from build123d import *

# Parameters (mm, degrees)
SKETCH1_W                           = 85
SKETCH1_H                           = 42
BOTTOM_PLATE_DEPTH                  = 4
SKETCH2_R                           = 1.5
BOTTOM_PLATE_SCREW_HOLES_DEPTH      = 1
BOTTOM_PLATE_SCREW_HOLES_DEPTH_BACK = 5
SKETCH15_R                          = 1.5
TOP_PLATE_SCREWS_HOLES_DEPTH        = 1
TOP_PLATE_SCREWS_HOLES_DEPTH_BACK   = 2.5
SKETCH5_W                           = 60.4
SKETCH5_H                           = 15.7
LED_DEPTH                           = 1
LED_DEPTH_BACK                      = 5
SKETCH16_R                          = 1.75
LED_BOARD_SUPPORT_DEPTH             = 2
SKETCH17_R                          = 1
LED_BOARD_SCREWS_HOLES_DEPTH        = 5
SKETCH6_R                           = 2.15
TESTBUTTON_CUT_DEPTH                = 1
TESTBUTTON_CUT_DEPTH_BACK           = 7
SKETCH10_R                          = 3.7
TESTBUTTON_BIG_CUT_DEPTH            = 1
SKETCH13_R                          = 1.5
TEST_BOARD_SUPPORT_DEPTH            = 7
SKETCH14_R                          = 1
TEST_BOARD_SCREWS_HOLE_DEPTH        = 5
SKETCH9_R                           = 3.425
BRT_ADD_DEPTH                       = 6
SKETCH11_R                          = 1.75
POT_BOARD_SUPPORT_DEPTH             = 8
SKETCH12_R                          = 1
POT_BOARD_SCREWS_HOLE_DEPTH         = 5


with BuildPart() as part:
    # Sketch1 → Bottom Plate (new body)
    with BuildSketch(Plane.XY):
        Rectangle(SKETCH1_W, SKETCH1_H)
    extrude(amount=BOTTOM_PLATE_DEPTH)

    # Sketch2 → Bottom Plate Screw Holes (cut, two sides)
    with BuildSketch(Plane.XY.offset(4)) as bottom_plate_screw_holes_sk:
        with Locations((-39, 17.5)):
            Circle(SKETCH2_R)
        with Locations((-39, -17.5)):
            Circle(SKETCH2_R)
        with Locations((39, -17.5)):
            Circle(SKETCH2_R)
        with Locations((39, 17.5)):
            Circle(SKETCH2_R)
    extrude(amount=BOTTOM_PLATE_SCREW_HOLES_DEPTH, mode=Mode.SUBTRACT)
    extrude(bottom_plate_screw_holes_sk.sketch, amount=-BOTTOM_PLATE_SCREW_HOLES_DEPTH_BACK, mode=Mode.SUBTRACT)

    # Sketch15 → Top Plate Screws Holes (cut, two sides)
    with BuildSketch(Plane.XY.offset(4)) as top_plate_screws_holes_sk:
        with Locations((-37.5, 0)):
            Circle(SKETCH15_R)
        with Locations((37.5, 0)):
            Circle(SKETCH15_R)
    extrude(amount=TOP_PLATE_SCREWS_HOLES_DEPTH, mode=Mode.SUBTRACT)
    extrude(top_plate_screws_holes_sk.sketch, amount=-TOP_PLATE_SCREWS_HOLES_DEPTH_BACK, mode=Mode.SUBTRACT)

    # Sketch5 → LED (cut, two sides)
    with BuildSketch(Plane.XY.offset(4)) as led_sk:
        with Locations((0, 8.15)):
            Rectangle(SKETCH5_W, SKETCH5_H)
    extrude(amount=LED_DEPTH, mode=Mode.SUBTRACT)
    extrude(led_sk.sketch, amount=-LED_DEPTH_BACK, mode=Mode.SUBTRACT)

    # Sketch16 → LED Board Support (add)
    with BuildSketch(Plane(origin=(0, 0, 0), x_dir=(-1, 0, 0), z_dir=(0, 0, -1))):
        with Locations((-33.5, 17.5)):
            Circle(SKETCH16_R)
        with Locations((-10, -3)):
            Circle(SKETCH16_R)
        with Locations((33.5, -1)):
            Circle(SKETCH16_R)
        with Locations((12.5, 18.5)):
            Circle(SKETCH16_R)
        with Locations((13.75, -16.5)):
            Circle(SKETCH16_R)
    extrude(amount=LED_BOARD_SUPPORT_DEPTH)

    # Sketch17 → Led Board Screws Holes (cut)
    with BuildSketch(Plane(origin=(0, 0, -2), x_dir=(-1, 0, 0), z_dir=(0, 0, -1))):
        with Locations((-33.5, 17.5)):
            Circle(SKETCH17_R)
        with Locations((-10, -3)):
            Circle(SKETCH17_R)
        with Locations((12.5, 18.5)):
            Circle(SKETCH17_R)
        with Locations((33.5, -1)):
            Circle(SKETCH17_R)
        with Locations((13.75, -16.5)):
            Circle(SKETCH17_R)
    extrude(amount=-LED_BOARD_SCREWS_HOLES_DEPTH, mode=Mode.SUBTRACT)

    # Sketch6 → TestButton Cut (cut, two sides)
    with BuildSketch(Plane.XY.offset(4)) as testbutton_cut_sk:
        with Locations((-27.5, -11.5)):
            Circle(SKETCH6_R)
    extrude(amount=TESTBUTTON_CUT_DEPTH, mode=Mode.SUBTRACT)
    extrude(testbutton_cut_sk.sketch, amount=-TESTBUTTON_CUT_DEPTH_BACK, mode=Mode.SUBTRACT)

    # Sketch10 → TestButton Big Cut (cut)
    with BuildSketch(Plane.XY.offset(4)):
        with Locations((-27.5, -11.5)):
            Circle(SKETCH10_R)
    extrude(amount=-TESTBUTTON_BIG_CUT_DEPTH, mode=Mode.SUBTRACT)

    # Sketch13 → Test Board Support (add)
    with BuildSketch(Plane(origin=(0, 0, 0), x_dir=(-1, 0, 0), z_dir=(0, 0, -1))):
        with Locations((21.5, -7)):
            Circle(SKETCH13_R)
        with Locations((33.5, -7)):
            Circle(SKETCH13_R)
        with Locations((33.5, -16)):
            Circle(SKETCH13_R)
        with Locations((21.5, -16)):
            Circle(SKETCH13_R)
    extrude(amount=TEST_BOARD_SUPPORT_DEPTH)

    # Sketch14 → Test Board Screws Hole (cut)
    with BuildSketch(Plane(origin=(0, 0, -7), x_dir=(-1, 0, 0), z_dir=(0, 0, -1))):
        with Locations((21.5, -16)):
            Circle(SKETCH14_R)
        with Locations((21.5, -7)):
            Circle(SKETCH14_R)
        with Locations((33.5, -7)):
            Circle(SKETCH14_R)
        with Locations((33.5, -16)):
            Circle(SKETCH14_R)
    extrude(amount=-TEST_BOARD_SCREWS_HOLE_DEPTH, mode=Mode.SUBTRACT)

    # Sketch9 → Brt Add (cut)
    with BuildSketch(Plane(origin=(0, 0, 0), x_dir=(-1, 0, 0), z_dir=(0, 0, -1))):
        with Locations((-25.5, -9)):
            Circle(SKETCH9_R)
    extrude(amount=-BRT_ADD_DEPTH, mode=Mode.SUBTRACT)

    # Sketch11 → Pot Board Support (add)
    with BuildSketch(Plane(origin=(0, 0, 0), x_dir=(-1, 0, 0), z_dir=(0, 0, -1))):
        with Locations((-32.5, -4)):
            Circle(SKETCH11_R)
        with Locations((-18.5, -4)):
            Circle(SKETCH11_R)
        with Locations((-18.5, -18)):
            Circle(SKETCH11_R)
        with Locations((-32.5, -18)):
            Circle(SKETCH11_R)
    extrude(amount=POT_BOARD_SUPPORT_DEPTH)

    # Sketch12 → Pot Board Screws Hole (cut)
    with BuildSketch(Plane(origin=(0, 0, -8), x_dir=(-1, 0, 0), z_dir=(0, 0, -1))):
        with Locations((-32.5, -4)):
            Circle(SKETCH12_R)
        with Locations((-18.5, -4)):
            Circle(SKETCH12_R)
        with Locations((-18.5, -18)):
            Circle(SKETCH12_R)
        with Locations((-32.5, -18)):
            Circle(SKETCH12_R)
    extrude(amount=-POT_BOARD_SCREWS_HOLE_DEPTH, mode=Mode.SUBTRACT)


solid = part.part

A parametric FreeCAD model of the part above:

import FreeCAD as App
import Part
import Sketcher
from FreeCAD import Vector

doc = App.newDocument("Part")
body = doc.addObject("PartDesign::Body", "Body")

# Sketch on XY plane
sketch1 = body.newObject("Sketcher::SketchObject", "Sketch")
sketch1.AttachmentSupport = (doc.getObject("XY_Plane"), [""])
sketch1.MapMode = "FlatFace"
sketch1.addGeometry([
    Part.LineSegment(Vector(-42, 21, 0), Vector(-42, -21, 0)),
    Part.LineSegment(Vector(-42, -21, 0), Vector(42, -21, 0)),
    Part.LineSegment(Vector(42, -21, 0), Vector(42, 21, 0)),
    Part.LineSegment(Vector(42, 21, 0), Vector(-42, 21, 0)),
], False)
sketch1.addConstraint([
    Sketcher.Constraint("Coincident", 0, 2, 1, 1),
    Sketcher.Constraint("Coincident", 1, 2, 2, 1),
    Sketcher.Constraint("Coincident", 2, 2, 3, 1),
    Sketcher.Constraint("Coincident", 3, 2, 0, 1),
    Sketcher.Constraint("Vertical", 0),
    Sketcher.Constraint("Horizontal", 1),
    Sketcher.Constraint("Vertical", 2),
    Sketcher.Constraint("Horizontal", 3),
    Sketcher.Constraint("Symmetric", 0, 2, 2, 2, -1, 1),
    Sketcher.Constraint("DistanceX", 1, 1, 1, 2, 85.0),
    Sketcher.Constraint("DistanceY", 0, 2, 0, 1, 42.0),
])
pad1 = body.newObject("PartDesign::Pad", "Pad")
pad1.Profile = sketch1
pad1.Length = 4

# Sketch on XY plane
sketch2 = body.newObject("Sketcher::SketchObject", "Sketch001")
sketch2.AttachmentSupport = (doc.getObject("XY_Plane"), [""])
sketch2.MapMode = "FlatFace"
sketch2.AttachmentOffset = App.Placement(Vector(0, 0, 4), App.Rotation())
sketch2.addGeometry([
    Part.Circle(Vector(-39, 17.5, 0), Vector(0, 0, 1), 1.5),
    Part.Circle(Vector(-39, -17.5, 0), Vector(0, 0, 1), 1.5),
    Part.Circle(Vector(39, -17.5, 0), Vector(0, 0, 1), 1.5),
    Part.Circle(Vector(39, 17.5, 0), Vector(0, 0, 1), 1.5),
], False)
sketch2.addConstraint([
    Sketcher.Constraint("Equal", 0, 1),
    Sketcher.Constraint("Equal", 1, 2),
    Sketcher.Constraint("Equal", 2, 3),
    Sketcher.Constraint("Symmetric", 0, 3, 2, 3, -1, 1),
    Sketcher.Constraint("Symmetric", 1, 3, 3, 3, -1, 1),
    Sketcher.Constraint("Symmetric", 1, 3, 2, 3, -2),
    Sketcher.Constraint("Diameter", 0, 3.0),
    Sketcher.Constraint("DistanceX", 0, 3, -1, 1, 39.0),
    Sketcher.Constraint("DistanceY", 1, 3, 0, 3, 35.0),
])
pocket1 = body.newObject("PartDesign::Pocket", "Pocket")
pocket1.Profile = sketch2
pocket1.Type = "ThroughAll"
pocket1.Midplane = True

# Sketch on XY plane
sketch3 = body.newObject("Sketcher::SketchObject", "Sketch002")
sketch3.AttachmentSupport = (doc.getObject("XY_Plane"), [""])
sketch3.MapMode = "FlatFace"
sketch3.AttachmentOffset = App.Placement(Vector(0, 0, 4), App.Rotation())
sketch3.addGeometry([
    Part.Circle(Vector(-37.5, 0, 0), Vector(0, 0, 1), 1.5),
    Part.Circle(Vector(37.5, 0, 0), Vector(0, 0, 1), 1.5),
], False)
sketch3.addConstraint([
    Sketcher.Constraint("Equal", 0, 1),
    Sketcher.Constraint("Symmetric", 0, 3, 1, 3, -1, 1),
    Sketcher.Constraint("PointOnObject", 0, 3, -1),
    Sketcher.Constraint("Diameter", 0, 3.0),
    Sketcher.Constraint("DistanceX", 0, 3, 1, 3, 75.0),
])
pocket2 = body.newObject("PartDesign::Pocket", "Pocket001")
pocket2.Profile = sketch3
pocket2.Type = "TwoLengths"
pocket2.Length = 1
pocket2.Length2 = 2.5
pocket2.Reversed = True

# Sketch on XY plane
sketch4 = body.newObject("Sketcher::SketchObject", "Sketch003")
sketch4.AttachmentSupport = (doc.getObject("XY_Plane"), [""])
sketch4.MapMode = "FlatFace"
sketch4.AttachmentOffset = App.Placement(Vector(0, 0, 4), App.Rotation())
sketch4.addGeometry([
    Part.LineSegment(Vector(-30, 16, 0), Vector(-30, 0, 0)),
    Part.LineSegment(Vector(-30, 0, 0), Vector(30, 0, 0)),
    Part.LineSegment(Vector(30, 0, 0), Vector(30, 16, 0)),
    Part.LineSegment(Vector(30, 16, 0), Vector(-30, 16, 0)),
], False)
sketch4.addConstraint([
    Sketcher.Constraint("Coincident", 0, 2, 1, 1),
    Sketcher.Constraint("Coincident", 1, 2, 2, 1),
    Sketcher.Constraint("Coincident", 2, 2, 3, 1),
    Sketcher.Constraint("Coincident", 3, 2, 0, 1),
    Sketcher.Constraint("Vertical", 0),
    Sketcher.Constraint("Horizontal", 1),
    Sketcher.Constraint("Vertical", 2),
    Sketcher.Constraint("Horizontal", 3),
    Sketcher.Constraint("DistanceX", 1, 1, 1, 2, 60.4),
    Sketcher.Constraint("DistanceY", 0, 2, 0, 1, 15.7),
    Sketcher.Constraint("DistanceY", -1, 1, 2, 2, 16.0),
    Sketcher.Constraint("DistanceX", 0, 2, -1, 1, 30.2),
])
pocket3 = body.newObject("PartDesign::Pocket", "Pocket002")
pocket3.Profile = sketch4
pocket3.Type = "ThroughAll"
pocket3.Midplane = True

# Sketch on XY plane
sketch5 = body.newObject("Sketcher::SketchObject", "Sketch004")
sketch5.AttachmentSupport = (doc.getObject("XY_Plane"), [""])
sketch5.MapMode = "FlatFace"
sketch5.addGeometry([
    Part.Circle(Vector(33.5, 17.5, 0), Vector(0, 0, 1), 1.8),  # 0
    Part.Circle(Vector(10, -3, 0), Vector(0, 0, 1), 1.8),  # 1
    Part.Circle(Vector(-33.5, -1, 0), Vector(0, 0, 1), 1.8),  # 2
    Part.Circle(Vector(-12.5, 18.5, 0), Vector(0, 0, 1), 1.8),  # 3
    Part.Circle(Vector(-13.8, -16.5, 0), Vector(0, 0, 1), 1.8),  # 4
], False)
sketch5.addConstraint([
    Sketcher.Constraint("Equal", 0, 1),
    Sketcher.Constraint("Equal", 1, 2),
    Sketcher.Constraint("Equal", 2, 3),
    Sketcher.Constraint("Equal", 3, 4),
    Sketcher.Constraint("Diameter", 0, 3.5),
    Sketcher.Constraint("DistanceX", -1, 1, 1, 3, 10.0),
    Sketcher.Constraint("DistanceY", 1, 3, -1, 1, 3.0),
    Sketcher.Constraint("DistanceY", 2, 3, -1, 1, 1.0),
    Sketcher.Constraint("DistanceX", 2, 3, 0, 3, 67.0),
    Sketcher.Constraint("DistanceX", 2, 3, 3, 3, 21.0),
    Sketcher.Constraint("DistanceY", 0, 3, 3, 3, 1.0),
    Sketcher.Constraint("DistanceY", 4, 3, 3, 3, 35.0),
    Sketcher.Constraint("DistanceX", -1, 1, 0, 3, 33.5),
    Sketcher.Constraint("DistanceY", -1, 1, 0, 3, 17.5),
    Sketcher.Constraint("DistanceX", 4, 3, -1, 1, 13.75),
])
pad2 = body.newObject("PartDesign::Pad", "Pad001")
pad2.Profile = sketch5
pad2.Length = 2
pad2.Reversed = True

# Sketch on XY plane
sketch6 = body.newObject("Sketcher::SketchObject", "Sketch005")
sketch6.AttachmentSupport = (doc.getObject("XY_Plane"), [""])
sketch6.MapMode = "FlatFace"
sketch6.AttachmentOffset = App.Placement(Vector(0, 0, -2), App.Rotation())
sketch6.addGeometry([
    Part.Circle(Vector(33.5, 17.5, 0), Vector(0, 0, 1), 1),  # 0
    Part.Circle(Vector(10, -3, 0), Vector(0, 0, 1), 1),  # 1
    Part.Circle(Vector(-12.5, 18.5, 0), Vector(0, 0, 1), 1),  # 2
    Part.Circle(Vector(-33.5, -1, 0), Vector(0, 0, 1), 1),  # 3
    Part.Circle(Vector(-13.8, -16.5, 0), Vector(0, 0, 1), 1),  # 4
], False)
sketch6.addConstraint([
    Sketcher.Constraint("Equal", 0, 1),
    Sketcher.Constraint("Equal", 1, 2),
    Sketcher.Constraint("Equal", 2, 3),
    Sketcher.Constraint("Equal", 3, 4),
    Sketcher.Constraint("Diameter", 0, 2.0),
    Sketcher.Constraint("DistanceX", -1, 1, 1, 3, 10.0),
    Sketcher.Constraint("DistanceY", 1, 3, -1, 1, 3.0),
    Sketcher.Constraint("DistanceY", 3, 3, -1, 1, 1.0),
    Sketcher.Constraint("DistanceX", 2, 3, 0, 3, 46.0),
    Sketcher.Constraint("DistanceY", 0, 3, 2, 3, 1.0),
    Sketcher.Constraint("DistanceX", 3, 3, 2, 3, 21.0),
    Sketcher.Constraint("DistanceY", 4, 3, 2, 3, 35.0),
    Sketcher.Constraint("DistanceX", -1, 1, 0, 3, 33.5),
    Sketcher.Constraint("DistanceY", -1, 1, 0, 3, 17.5),
    Sketcher.Constraint("DistanceX", 4, 3, -1, 1, 13.75),
])
pocket4 = body.newObject("PartDesign::Pocket", "Pocket003")
pocket4.Profile = sketch6
pocket4.Length = 5
pocket4.Reversed = True

# Sketch on XY plane
sketch7 = body.newObject("Sketcher::SketchObject", "Sketch006")
sketch7.AttachmentSupport = (doc.getObject("XY_Plane"), [""])
sketch7.MapMode = "FlatFace"
sketch7.AttachmentOffset = App.Placement(Vector(0, 0, 4), App.Rotation())
sketch7.addGeometry(Part.Circle(Vector(-27.5, -11.5, 0), Vector(0, 0, 1), 2.1), False)
sketch7.addConstraint([
    Sketcher.Constraint("Diameter", 0, 4.3),
    Sketcher.Constraint("DistanceX", 0, 3, -1, 1, 27.5),
    Sketcher.Constraint("DistanceY", 0, 3, -1, 1, 11.5),
])
pocket5 = body.newObject("PartDesign::Pocket", "Pocket004")
pocket5.Profile = sketch7
pocket5.Type = "ThroughAll"
pocket5.Midplane = True

# Sketch on XY plane
sketch8 = body.newObject("Sketcher::SketchObject", "Sketch007")
sketch8.AttachmentSupport = (doc.getObject("XY_Plane"), [""])
sketch8.MapMode = "FlatFace"
sketch8.AttachmentOffset = App.Placement(Vector(0, 0, 4), App.Rotation())
sketch8.addGeometry(Part.Circle(Vector(-27.5, -11.5, 0), Vector(0, 0, 1), 3.7), False)
sketch8.addConstraint([
    Sketcher.Constraint("Diameter", 0, 7.4),
    Sketcher.Constraint("DistanceX", 0, 3, -1, 1, 27.5),
    Sketcher.Constraint("DistanceY", 0, 3, -1, 1, 11.5),
])
pocket6 = body.newObject("PartDesign::Pocket", "Pocket005")
pocket6.Profile = sketch8
pocket6.Length = 1

# Sketch on XY plane
sketch9 = body.newObject("Sketcher::SketchObject", "Sketch008")
sketch9.AttachmentSupport = (doc.getObject("XY_Plane"), [""])
sketch9.MapMode = "FlatFace"
sketch9.addGeometry([
    Part.Circle(Vector(-21.5, -7, 0), Vector(0, 0, 1), 1.5),
    Part.Circle(Vector(-33.5, -7, 0), Vector(0, 0, 1), 1.5),
    Part.Circle(Vector(-33.5, -16, 0), Vector(0, 0, 1), 1.5),
    Part.Circle(Vector(-21.5, -16, 0), Vector(0, 0, 1), 1.5),
], False)
sketch9.addConstraint([
    Sketcher.Constraint("Equal", 0, 1),
    Sketcher.Constraint("Equal", 1, 2),
    Sketcher.Constraint("Equal", 2, 3),
    Sketcher.Constraint("Horizontal", 0, 3, 1, 3),
    Sketcher.Constraint("Horizontal", 2, 3, 3, 3),
    Sketcher.Constraint("Vertical", 1, 3, 2, 3),
    Sketcher.Constraint("Vertical", 0, 3, 3, 3),
    Sketcher.Constraint("Diameter", 0, 3.0),
    Sketcher.Constraint("DistanceY", 0, 3, -1, 1, 7.0),
    Sketcher.Constraint("DistanceY", 2, 3, -1, 1, 16.0),
    Sketcher.Constraint("DistanceX", 1, 3, 0, 3, 12.0),
    Sketcher.Constraint("DistanceX", 0, 3, -1, 1, 21.5),
])
pad3 = body.newObject("PartDesign::Pad", "Pad002")
pad3.Profile = sketch9
pad3.Length = 7
pad3.Reversed = True

# Sketch on XY plane
sketch10 = body.newObject("Sketcher::SketchObject", "Sketch009")
sketch10.AttachmentSupport = (doc.getObject("XY_Plane"), [""])
sketch10.MapMode = "FlatFace"
sketch10.AttachmentOffset = App.Placement(Vector(0, 0, -7), App.Rotation())
sketch10.addGeometry([
    Part.Circle(Vector(-21.5, -16, 0), Vector(0, 0, 1), 1),
    Part.Circle(Vector(-21.5, -7, 0), Vector(0, 0, 1), 1),
    Part.Circle(Vector(-33.5, -7, 0), Vector(0, 0, 1), 1),
    Part.Circle(Vector(-33.5, -16, 0), Vector(0, 0, 1), 1),
], False)
sketch10.addConstraint([
    Sketcher.Constraint("Equal", 0, 1),
    Sketcher.Constraint("Equal", 1, 2),
    Sketcher.Constraint("Equal", 2, 3),
    Sketcher.Constraint("Horizontal", 1, 3, 2, 3),
    Sketcher.Constraint("Horizontal", 0, 3, 3, 3),
    Sketcher.Constraint("Vertical", 0, 3, 1, 3),
    Sketcher.Constraint("Vertical", 2, 3, 3, 3),
    Sketcher.Constraint("Diameter", 0, 2.0),
    Sketcher.Constraint("DistanceY", 0, 3, -1, 1, 16.0),
    Sketcher.Constraint("DistanceY", 1, 3, -1, 1, 7.0),
    Sketcher.Constraint("DistanceX", 2, 3, 1, 3, 12.0),
    Sketcher.Constraint("DistanceX", 0, 3, -1, 1, 21.5),
])
pocket7 = body.newObject("PartDesign::Pocket", "Pocket006")
pocket7.Profile = sketch10
pocket7.Length = 5
pocket7.Reversed = True

# Sketch on XY plane
sketch11 = body.newObject("Sketcher::SketchObject", "Sketch010")
sketch11.AttachmentSupport = (doc.getObject("XY_Plane"), [""])
sketch11.MapMode = "FlatFace"
sketch11.addGeometry(Part.Circle(Vector(25.5, -9, 0), Vector(0, 0, 1), 3.4), False)
sketch11.addConstraint([
    Sketcher.Constraint("Diameter", 0, 6.85),
    Sketcher.Constraint("DistanceY", 0, 3, -1, 1, 9.0),
    Sketcher.Constraint("DistanceX", -1, 1, 0, 3, 25.5),
])
pocket8 = body.newObject("PartDesign::Pocket", "Pocket007")
pocket8.Profile = sketch11
pocket8.Length = 6
pocket8.Reversed = True

# Sketch on XY plane
sketch12 = body.newObject("Sketcher::SketchObject", "Sketch011")
sketch12.AttachmentSupport = (doc.getObject("XY_Plane"), [""])
sketch12.MapMode = "FlatFace"
sketch12.addGeometry([
    Part.Circle(Vector(32.5, -4, 0), Vector(0, 0, 1), 1.8),
    Part.Circle(Vector(18.5, -4, 0), Vector(0, 0, 1), 1.8),
    Part.Circle(Vector(18.5, -18, 0), Vector(0, 0, 1), 1.8),
    Part.Circle(Vector(32.5, -18, 0), Vector(0, 0, 1), 1.8),
], False)
sketch12.addConstraint([
    Sketcher.Constraint("Equal", 0, 1),
    Sketcher.Constraint("Equal", 1, 2),
    Sketcher.Constraint("Equal", 2, 3),
    Sketcher.Constraint("Horizontal", 0, 3, 1, 3),
    Sketcher.Constraint("Horizontal", 2, 3, 3, 3),
    Sketcher.Constraint("Vertical", 1, 3, 2, 3),
    Sketcher.Constraint("Vertical", 0, 3, 3, 3),
    Sketcher.Constraint("Diameter", 0, 3.5),
    Sketcher.Constraint("DistanceY", 0, 3, -1, 1, 4.0),
    Sketcher.Constraint("DistanceY", 2, 3, -1, 1, 18.0),
    Sketcher.Constraint("DistanceX", 1, 3, 0, 3, 14.0),
    Sketcher.Constraint("DistanceX", -1, 1, 0, 3, 32.5),
])
pad4 = body.newObject("PartDesign::Pad", "Pad003")
pad4.Profile = sketch12
pad4.Length = 8
pad4.Reversed = True

# Sketch on XY plane
sketch13 = body.newObject("Sketcher::SketchObject", "Sketch012")
sketch13.AttachmentSupport = (doc.getObject("XY_Plane"), [""])
sketch13.MapMode = "FlatFace"
sketch13.AttachmentOffset = App.Placement(Vector(0, 0, -8), App.Rotation())
sketch13.addGeometry([
    Part.Circle(Vector(32.5, -4, 0), Vector(0, 0, 1), 1),
    Part.Circle(Vector(18.5, -4, 0), Vector(0, 0, 1), 1),
    Part.Circle(Vector(18.5, -18, 0), Vector(0, 0, 1), 1),
    Part.Circle(Vector(32.5, -18, 0), Vector(0, 0, 1), 1),
], False)
sketch13.addConstraint([
    Sketcher.Constraint("Equal", 0, 1),
    Sketcher.Constraint("Equal", 1, 2),
    Sketcher.Constraint("Equal", 2, 3),
    Sketcher.Constraint("Horizontal", 0, 3, 1, 3),
    Sketcher.Constraint("Horizontal", 2, 3, 3, 3),
    Sketcher.Constraint("Vertical", 1, 3, 2, 3),
    Sketcher.Constraint("Vertical", 0, 3, 3, 3),
    Sketcher.Constraint("Diameter", 0, 2.0),
    Sketcher.Constraint("DistanceY", 0, 3, -1, 1, 4.0),
    Sketcher.Constraint("DistanceY", 2, 3, -1, 1, 18.0),
    Sketcher.Constraint("DistanceX", 1, 3, 0, 3, 14.0),
    Sketcher.Constraint("DistanceX", -1, 1, 0, 3, 32.5),
])
pocket9 = body.newObject("PartDesign::Pocket", "Pocket008")
pocket9.Profile = sketch13
pocket9.Length = 5
pocket9.Reversed = True

doc.recompute()
